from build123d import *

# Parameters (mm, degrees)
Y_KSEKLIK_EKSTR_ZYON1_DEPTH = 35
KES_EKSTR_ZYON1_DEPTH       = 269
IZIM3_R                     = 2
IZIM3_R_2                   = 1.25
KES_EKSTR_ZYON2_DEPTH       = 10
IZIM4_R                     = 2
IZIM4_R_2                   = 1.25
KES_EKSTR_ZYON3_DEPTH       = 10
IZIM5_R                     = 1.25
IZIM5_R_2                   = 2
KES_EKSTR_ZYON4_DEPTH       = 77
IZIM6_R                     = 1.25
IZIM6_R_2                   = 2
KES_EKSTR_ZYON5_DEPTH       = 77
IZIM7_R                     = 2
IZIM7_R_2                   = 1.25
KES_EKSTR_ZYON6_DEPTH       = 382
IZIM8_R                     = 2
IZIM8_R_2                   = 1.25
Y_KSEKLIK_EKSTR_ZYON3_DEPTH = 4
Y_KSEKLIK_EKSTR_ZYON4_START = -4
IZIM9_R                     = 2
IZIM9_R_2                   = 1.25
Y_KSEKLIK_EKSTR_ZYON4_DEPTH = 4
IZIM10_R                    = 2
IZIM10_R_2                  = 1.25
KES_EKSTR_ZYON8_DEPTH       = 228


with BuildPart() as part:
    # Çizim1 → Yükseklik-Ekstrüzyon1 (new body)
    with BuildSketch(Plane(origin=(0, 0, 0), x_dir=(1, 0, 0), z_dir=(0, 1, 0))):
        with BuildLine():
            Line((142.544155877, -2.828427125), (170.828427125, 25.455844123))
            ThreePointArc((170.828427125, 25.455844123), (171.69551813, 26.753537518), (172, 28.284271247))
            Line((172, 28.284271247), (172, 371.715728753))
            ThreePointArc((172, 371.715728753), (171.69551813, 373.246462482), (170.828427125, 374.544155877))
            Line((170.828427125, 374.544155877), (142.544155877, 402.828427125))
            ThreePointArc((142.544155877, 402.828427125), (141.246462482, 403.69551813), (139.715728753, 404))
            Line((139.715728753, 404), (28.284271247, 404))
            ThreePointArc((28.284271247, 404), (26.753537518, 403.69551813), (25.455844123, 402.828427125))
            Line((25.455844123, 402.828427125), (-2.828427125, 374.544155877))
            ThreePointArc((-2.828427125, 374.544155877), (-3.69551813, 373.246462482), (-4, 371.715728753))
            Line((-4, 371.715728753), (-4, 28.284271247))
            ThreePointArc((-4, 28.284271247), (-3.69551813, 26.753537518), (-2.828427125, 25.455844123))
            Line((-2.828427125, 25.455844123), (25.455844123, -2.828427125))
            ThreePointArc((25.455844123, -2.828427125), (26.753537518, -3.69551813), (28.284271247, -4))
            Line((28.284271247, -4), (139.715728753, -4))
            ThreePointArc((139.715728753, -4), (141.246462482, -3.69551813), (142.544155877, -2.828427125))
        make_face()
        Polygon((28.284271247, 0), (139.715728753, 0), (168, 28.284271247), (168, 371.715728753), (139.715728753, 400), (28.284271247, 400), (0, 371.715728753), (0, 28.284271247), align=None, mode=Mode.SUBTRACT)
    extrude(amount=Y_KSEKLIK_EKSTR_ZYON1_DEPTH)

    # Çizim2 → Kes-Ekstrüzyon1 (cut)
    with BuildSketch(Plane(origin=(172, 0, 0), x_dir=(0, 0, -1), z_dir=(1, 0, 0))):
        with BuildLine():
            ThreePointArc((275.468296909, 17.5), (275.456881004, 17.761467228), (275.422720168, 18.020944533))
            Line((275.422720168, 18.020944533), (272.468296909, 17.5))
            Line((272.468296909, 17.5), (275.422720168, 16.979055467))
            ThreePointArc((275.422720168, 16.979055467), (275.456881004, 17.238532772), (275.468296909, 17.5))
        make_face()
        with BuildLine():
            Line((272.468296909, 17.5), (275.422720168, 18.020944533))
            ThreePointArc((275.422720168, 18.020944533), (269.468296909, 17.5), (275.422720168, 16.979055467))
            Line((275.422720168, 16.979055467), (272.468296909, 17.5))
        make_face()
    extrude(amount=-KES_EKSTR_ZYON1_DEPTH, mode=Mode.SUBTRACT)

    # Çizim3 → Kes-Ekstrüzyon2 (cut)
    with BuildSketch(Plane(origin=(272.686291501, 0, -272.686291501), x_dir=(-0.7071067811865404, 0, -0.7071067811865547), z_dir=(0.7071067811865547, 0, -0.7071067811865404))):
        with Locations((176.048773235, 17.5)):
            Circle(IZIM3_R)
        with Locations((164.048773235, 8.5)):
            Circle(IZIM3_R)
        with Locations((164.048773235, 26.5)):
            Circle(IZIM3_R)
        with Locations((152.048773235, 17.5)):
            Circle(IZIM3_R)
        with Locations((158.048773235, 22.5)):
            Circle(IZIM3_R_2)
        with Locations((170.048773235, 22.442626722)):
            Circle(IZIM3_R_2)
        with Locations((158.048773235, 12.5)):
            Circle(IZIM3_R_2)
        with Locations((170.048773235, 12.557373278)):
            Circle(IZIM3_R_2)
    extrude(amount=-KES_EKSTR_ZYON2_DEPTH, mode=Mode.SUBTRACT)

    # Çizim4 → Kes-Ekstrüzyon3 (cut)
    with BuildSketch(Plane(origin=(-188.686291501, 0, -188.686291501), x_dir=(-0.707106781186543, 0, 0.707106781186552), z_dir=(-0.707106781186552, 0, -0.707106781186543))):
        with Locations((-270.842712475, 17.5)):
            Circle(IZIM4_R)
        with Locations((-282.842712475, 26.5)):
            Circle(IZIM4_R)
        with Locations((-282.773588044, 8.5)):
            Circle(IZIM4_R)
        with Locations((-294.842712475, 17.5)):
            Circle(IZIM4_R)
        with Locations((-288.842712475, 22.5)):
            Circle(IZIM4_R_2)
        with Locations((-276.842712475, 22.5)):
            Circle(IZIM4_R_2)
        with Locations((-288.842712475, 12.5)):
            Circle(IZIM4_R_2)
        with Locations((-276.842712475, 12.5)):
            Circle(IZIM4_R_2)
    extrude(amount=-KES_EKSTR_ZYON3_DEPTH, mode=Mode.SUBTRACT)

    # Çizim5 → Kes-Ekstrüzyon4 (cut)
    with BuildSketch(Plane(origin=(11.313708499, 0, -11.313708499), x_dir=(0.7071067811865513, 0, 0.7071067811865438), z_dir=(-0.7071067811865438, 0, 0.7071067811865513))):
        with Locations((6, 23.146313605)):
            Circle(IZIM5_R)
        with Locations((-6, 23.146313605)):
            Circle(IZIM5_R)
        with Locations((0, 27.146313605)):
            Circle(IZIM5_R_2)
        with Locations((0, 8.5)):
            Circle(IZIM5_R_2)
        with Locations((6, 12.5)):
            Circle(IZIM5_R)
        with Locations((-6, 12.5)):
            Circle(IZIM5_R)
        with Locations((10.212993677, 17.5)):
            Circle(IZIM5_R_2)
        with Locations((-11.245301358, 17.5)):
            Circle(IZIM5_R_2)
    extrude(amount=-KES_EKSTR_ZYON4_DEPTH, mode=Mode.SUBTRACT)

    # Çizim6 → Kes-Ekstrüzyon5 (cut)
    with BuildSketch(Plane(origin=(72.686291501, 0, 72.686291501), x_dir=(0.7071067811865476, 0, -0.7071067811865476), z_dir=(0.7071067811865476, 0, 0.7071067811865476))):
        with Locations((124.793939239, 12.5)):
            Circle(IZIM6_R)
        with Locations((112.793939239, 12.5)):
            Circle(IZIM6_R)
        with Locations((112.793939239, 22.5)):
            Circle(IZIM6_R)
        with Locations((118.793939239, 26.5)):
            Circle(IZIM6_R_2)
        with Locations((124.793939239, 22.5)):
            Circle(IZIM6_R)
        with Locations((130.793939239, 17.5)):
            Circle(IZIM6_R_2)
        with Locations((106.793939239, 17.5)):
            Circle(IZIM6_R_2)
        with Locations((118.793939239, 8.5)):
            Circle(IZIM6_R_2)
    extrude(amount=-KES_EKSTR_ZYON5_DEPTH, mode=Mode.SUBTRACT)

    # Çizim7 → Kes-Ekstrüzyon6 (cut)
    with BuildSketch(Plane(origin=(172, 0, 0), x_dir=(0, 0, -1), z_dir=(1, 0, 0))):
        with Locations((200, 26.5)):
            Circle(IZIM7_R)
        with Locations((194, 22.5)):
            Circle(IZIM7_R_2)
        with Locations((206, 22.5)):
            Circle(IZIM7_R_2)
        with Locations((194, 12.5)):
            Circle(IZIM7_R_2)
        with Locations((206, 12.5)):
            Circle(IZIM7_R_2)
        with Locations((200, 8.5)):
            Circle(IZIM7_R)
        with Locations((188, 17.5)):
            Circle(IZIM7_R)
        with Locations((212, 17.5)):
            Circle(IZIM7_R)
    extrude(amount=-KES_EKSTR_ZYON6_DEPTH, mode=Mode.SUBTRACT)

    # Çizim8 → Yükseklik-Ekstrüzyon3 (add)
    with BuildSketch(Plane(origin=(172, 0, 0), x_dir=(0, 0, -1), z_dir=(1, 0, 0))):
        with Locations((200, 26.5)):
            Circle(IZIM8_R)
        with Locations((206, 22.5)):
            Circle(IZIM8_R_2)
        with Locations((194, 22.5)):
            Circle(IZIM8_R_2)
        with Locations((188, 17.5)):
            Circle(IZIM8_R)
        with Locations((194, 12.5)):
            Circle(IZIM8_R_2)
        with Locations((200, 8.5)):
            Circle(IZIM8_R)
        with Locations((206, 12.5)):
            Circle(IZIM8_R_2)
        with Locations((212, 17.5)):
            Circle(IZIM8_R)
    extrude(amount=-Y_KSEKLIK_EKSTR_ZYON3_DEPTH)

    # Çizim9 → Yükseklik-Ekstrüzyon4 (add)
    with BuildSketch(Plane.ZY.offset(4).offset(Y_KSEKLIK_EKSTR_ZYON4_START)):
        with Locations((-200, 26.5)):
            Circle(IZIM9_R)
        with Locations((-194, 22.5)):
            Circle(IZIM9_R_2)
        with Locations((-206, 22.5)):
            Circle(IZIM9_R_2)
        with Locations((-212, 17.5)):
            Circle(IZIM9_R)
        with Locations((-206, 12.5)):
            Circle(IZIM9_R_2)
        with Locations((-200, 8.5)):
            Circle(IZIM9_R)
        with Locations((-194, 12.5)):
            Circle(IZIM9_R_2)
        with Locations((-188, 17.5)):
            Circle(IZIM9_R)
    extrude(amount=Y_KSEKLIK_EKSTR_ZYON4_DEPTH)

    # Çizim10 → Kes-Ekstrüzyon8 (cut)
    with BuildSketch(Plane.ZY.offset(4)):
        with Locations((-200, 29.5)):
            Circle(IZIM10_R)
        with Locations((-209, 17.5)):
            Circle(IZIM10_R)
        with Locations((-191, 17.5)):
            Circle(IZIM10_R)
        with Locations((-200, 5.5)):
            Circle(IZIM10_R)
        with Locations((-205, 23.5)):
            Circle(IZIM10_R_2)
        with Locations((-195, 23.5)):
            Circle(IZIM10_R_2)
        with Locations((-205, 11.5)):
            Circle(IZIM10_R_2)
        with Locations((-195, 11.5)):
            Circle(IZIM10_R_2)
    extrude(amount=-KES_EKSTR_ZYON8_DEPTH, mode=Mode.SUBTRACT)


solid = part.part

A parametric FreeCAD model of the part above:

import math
import FreeCAD as App
import Part
import Sketcher
from FreeCAD import Vector
Q = App.Units.Quantity


def add_polygon(sketch, points):
    """Adds a closed chain of lines whose ends are joined by coincident constraints."""
    first, n = sketch.GeometryCount, len(points)
    for a, b in zip(points, points[1:] + points[:1]):
        sketch.addGeometry(Part.LineSegment(App.Vector(*a, 0), App.Vector(*b, 0)), False)
    for i in range(n):
        sketch.addConstraint(Sketcher.Constraint("Coincident", first + i, 2, first + (i + 1) % n, 1))

doc = App.newDocument("Part")
params = doc.addObject("Spreadsheet::Sheet", "Params")
for row, (alias, value) in enumerate([
    ("sketch1_radius", "4 mm"),
    ("sketch1_length", "40 mm"),
    ("pad1_length", "35 mm"),
    ("sketch2_radius", "3 mm"),
    ("pocket1_length", "269 mm"),
    ("sketch3_diameter", "4 mm"),
    ("sketch3_diameter2", "2.5 mm"),
    ("pocket2_length", "10 mm"),
    ("sketch4_diameter", "4 mm"),
    ("sketch4_diameter2", "2.5 mm"),
    ("pocket3_length", "10 mm"),
    ("sketch5_diameter", "4 mm"),
    ("sketch5_diameter2", "2.5 mm"),
    ("pocket4_length", "77 mm"),
    ("sketch6_diameter", "4 mm"),
    ("sketch6_diameter2", "2.5 mm"),
    ("pocket5_length", "77 mm"),
    ("sketch7_diameter", "4 mm"),
    ("sketch7_diameter2", "2.5 mm"),
    ("pocket6_length", "382 mm"),
    ("sketch8_diameter", "4 mm"),
    ("sketch8_diameter2", "2.5 mm"),
    ("pad2_length", "4 mm"),
    ("sketch9_diameter", "4 mm"),
    ("sketch9_diameter2", "2.5 mm"),
    ("pad3_length", "4 mm"),
    ("sketch10_diameter", "4 mm"),
    ("sketch10_diameter2", "2.5 mm"),
    ("pocket7_length", "228 mm"),
], start=1):
    params.set(f"A{row}", alias)
    params.set(f"B{row}", "=" + value)
    params.setAlias(f"B{row}", alias)

body = doc.addObject("PartDesign::Body", "Body")

sketch1 = body.newObject("Sketcher::SketchObject", "Sketch")
sketch1.AttachmentSupport = (doc.getObject("XZ_Plane"), [""])
sketch1.MapMode = "FlatFace"
sketch1.addGeometry(Part.LineSegment(Vector(142.5, 2.8, 0), Vector(170.8, -25.5, 0)), False)
sketch1.addGeometry(Part.ArcOfCircle(Part.Circle(Vector(168, -28.3, 0), Vector(0, 0, 1), 4), math.radians(0), math.radians(45)), False)
sketch1.addGeometry(Part.LineSegment(Vector(172, -28.3, 0), Vector(172, -371.7, 0)), False)
sketch1.addGeometry(Part.ArcOfCircle(Part.Circle(Vector(168, -371.7, 0), Vector(0, 0, 1), 4), math.radians(-45), math.radians(0)), False)
sketch1.addGeometry(Part.LineSegment(Vector(170.8, -374.5, 0), Vector(142.5, -402.8, 0)), False)
sketch1.addGeometry(Part.ArcOfCircle(Part.Circle(Vector(139.7, -400, 0), Vector(0, 0, 1), 4), math.radians(-90), math.radians(-45)), False)
sketch1.addGeometry(Part.LineSegment(Vector(139.7, -404, 0), Vector(28.3, -404, 0)), False)
sketch1.addGeometry(Part.ArcOfCircle(Part.Circle(Vector(28.3, -400, 0), Vector(0, 0, 1), 4), math.radians(-135), math.radians(-90)), False)
sketch1.addGeometry(Part.LineSegment(Vector(25.5, -402.8, 0), Vector(-2.8, -374.5, 0)), False)
sketch1.addGeometry(Part.ArcOfCircle(Part.Circle(Vector(0, -371.7, 0), Vector(0, 0, 1), 4), math.radians(-180), math.radians(-135)), False)
sketch1.addGeometry(Part.LineSegment(Vector(-4, -371.7, 0), Vector(-4, -28.3, 0)), False)
sketch1.addGeometry(Part.ArcOfCircle(Part.Circle(Vector(0, -28.3, 0), Vector(0, 0, 1), 4), math.radians(135), math.radians(180)), False)
sketch1.addGeometry(Part.LineSegment(Vector(-2.8, -25.5, 0), Vector(25.5, 2.8, 0)), False)
sketch1.addGeometry(Part.ArcOfCircle(Part.Circle(Vector(28.3, 0, 0), Vector(0, 0, 1), 4), math.radians(90), math.radians(135)), False)
sketch1.addGeometry(Part.LineSegment(Vector(28.3, 4, 0), Vector(139.7, 4, 0)), False)
sketch1.addGeometry(Part.ArcOfCircle(Part.Circle(Vector(139.7, 0, 0), Vector(0, 0, 1), 4), math.radians(45), math.radians(90)), False)
add_polygon(sketch1, [(139.7, 0), (28.3, 0), (0, -28.3), (0, -371.7), (28.3, -400), (139.7, -400), (168, -371.7), (168, -28.3)])
sketch1.addConstraint(Sketcher.Constraint("Tangent", 0, 2, 1, 2))
sketch1.addConstraint(Sketcher.Constraint("Tangent", 1, 1, 2, 1))
sketch1.addConstraint(Sketcher.Constraint("Tangent", 2, 2, 3, 2))
sketch1.addConstraint(Sketcher.Constraint("Tangent", 3, 1, 4, 1))
sketch1.addConstraint(Sketcher.Constraint("Tangent", 4, 2, 5, 2))
sketch1.addConstraint(Sketcher.Constraint("Tangent", 5, 1, 6, 1))
sketch1.addConstraint(Sketcher.Constraint("Tangent", 6, 2, 7, 2))
sketch1.addConstraint(Sketcher.Constraint("Tangent", 7, 1, 8, 1))
sketch1.addConstraint(Sketcher.Constraint("Tangent", 8, 2, 9, 2))
sketch1.addConstraint(Sketcher.Constraint("Tangent", 9, 1, 10, 1))
sketch1.addConstraint(Sketcher.Constraint("Tangent", 10, 2, 11, 2))
sketch1.addConstraint(Sketcher.Constraint("Tangent", 11, 1, 12, 1))
sketch1.addConstraint(Sketcher.Constraint("Tangent", 12, 2, 13, 2))
sketch1.addConstraint(Sketcher.Constraint("Tangent", 13, 1, 14, 1))
sketch1.addConstraint(Sketcher.Constraint("Tangent", 14, 2, 15, 2))
sketch1.addConstraint(Sketcher.Constraint("Tangent", 15, 1, 0, 1))
sketch1.addConstraint(Sketcher.Constraint("Vertical", 2))
sketch1.addConstraint(Sketcher.Constraint("Horizontal", 6))
sketch1.addConstraint(Sketcher.Constraint("Vertical", 10))
sketch1.addConstraint(Sketcher.Constraint("Horizontal", 14))
sketch1.addConstraint(Sketcher.Constraint("Horizontal", 16))
sketch1.addConstraint(Sketcher.Constraint("Vertical", 18))
sketch1.addConstraint(Sketcher.Constraint("Horizontal", 20))
sketch1.addConstraint(Sketcher.Constraint("Vertical", 22))
sketch1.addConstraint(Sketcher.Constraint("Coincident", 16, 2, 13, 3))
sketch1.addConstraint(Sketcher.Constraint("Coincident", 17, 2, 11, 3))
sketch1.addConstraint(Sketcher.Constraint("Coincident", 18, 2, 9, 3))
sketch1.addConstraint(Sketcher.Constraint("Coincident", 19, 2, 7, 3))
sketch1.addConstraint(Sketcher.Constraint("Coincident", 20, 2, 5, 3))
sketch1.addConstraint(Sketcher.Constraint("Coincident", 21, 2, 3, 3))
sketch1.addConstraint(Sketcher.Constraint("Coincident", 22, 2, 1, 3))
sketch1.addConstraint(Sketcher.Constraint("Coincident", 23, 2, 15, 3))
sketch1.addConstraint(Sketcher.Constraint("Equal", 3, 5))
sketch1.addConstraint(Sketcher.Constraint("Equal", 7, 9))
sketch1.addConstraint(Sketcher.Constraint("Equal", 11, 13))
sketch1.addConstraint(Sketcher.Constraint("PointOnObject", 9, 3, -2))
sketch1.addConstraint(Sketcher.Constraint("PointOnObject", 13, 3, -1))
sketch1.addConstraint(Sketcher.Constraint("Perpendicular", 0, 4))
sketch1.addConstraint(Sketcher.Constraint("Perpendicular", 4, 8))
sketch1.addConstraint(Sketcher.Constraint("Perpendicular", 8, 12))
sketch1.addConstraint(Sketcher.Constraint("Horizontal", 3, 3, 9, 3))
sketch1.addConstraint(Sketcher.Constraint("Horizontal", 1, 3, 11, 3))
sketch1.addConstraint(Sketcher.Constraint("Horizontal", 4, 2, 7, 1))
sketch1.addConstraint(Sketcher.Constraint("Vertical", 7, 3, 13, 3))
sketch1.addConstraint(Sketcher.Constraint("Radius", 1, Q("4 mm")))
sketch1.addConstraint(Sketcher.Constraint("Distance", 0, Q("40 mm")))
sketch1.addConstraint(Sketcher.Constraint("DistanceX", -1, 1, 1, 3, Q("168 mm")))
sketch1.addConstraint(Sketcher.Constraint("DistanceY", 5, 3, -1, 1, Q("400 mm")))
sketch1.setExpression("Constraints[52]", "Params.sketch1_radius")
sketch1.setExpression("Constraints[53]", "Params.sketch1_length")
pad1 = body.newObject("PartDesign::Pad", "Pad")
pad1.Profile = sketch1
pad1.setExpression("Length", "Params.pad1_length")
pad1.Reversed = True

sketch2 = body.newObject("Sketcher::SketchObject", "Sketch001")
sketch2.AttachmentSupport = (doc.getObject("YZ_Plane"), [""])
sketch2.MapMode = "FlatFace"
sketch2.AttachmentOffset = App.Placement(Vector(0, 0, 172), App.Rotation())
sketch2.addGeometry(Part.ArcOfCircle(Part.Circle(Vector(17.5, -272.5, 0), Vector(0, 0, 1), 3), math.radians(-90), math.radians(-80)), False)
sketch2.addGeometry(Part.ArcOfCircle(Part.Circle(Vector(17.5, -272.5, 0), Vector(0, 0, 1), 3), math.radians(-80), math.radians(260)), False)
sketch2.addGeometry(Part.ArcOfCircle(Part.Circle(Vector(17.5, -272.5, 0), Vector(0, 0, 1), 3), math.radians(-100), math.radians(-90)), False)
sketch2.addConstraint(Sketcher.Constraint("Tangent", 0, 2, 1, 1))
sketch2.addConstraint(Sketcher.Constraint("Tangent", 1, 2, 2, 1))
sketch2.addConstraint(Sketcher.Constraint("Tangent", 2, 2, 0, 1))
sketch2.addConstraint(Sketcher.Constraint("Horizontal", 0, 2, 1, 2))
sketch2.addConstraint(Sketcher.Constraint("Vertical", 1, 3, 2, 2))
sketch2.addConstraint(Sketcher.Constraint("Radius", 0, Q("3 mm")))
sketch2.addConstraint(Sketcher.Constraint("DistanceX", -1, 1, 0, 3, Q("17.5 mm")))
sketch2.addConstraint(Sketcher.Constraint("DistanceY", 0, 2, -1, 1, Q("275.42272 mm")))
sketch2.addConstraint(Sketcher.Constraint("DistanceX", 1, 2, 0, 2, Q("1.041889 mm")))
sketch2.setExpression("Constraints[5]", "Params.sketch2_radius")
pocket1 = body.newObject("PartDesign::Pocket", "Pocket")
pocket1.Profile = sketch2
pocket1.setExpression("Length", "Params.pocket1_length")

sketch3 = body.newObject("Sketcher::SketchObject", "Sketch002")
sketch3.Placement = App.Placement(Vector(272.686292, 0, -272.686292), App.Rotation(Vector(-0.707106781, 0, -0.707106781), Vector(0, 0.999999999, 0), Vector(0.707106781, 0, -0.707106781), "ZXY"))
sketch3.addGeometry(Part.Circle(Vector(176, 17.5, 0), Vector(0, 0, 1), 2), False)
sketch3.addGeometry(Part.Circle(Vector(164, 8.5, 0), Vector(0, 0, 1), 2), False)
sketch3.addGeometry(Part.Circle(Vector(164, 26.5, 0), Vector(0, 0, 1), 2), False)
sketch3.addGeometry(Part.Circle(Vector(152, 17.5, 0), Vector(0, 0, 1), 2), False)
sketch3.addGeometry(Part.Circle(Vector(158, 22.5, 0), Vector(0, 0, 1), 1.2), False)
sketch3.addGeometry(Part.Circle(Vector(170, 22.4, 0), Vector(0, 0, 1), 1.2), False)
sketch3.addGeometry(Part.Circle(Vector(158, 12.5, 0), Vector(0, 0, 1), 1.2), False)
sketch3.addGeometry(Part.Circle(Vector(170, 12.6, 0), Vector(0, 0, 1), 1.2), False)
sketch3.addConstraint(Sketcher.Constraint("Equal", 0, 1))
sketch3.addConstraint(Sketcher.Constraint("Equal", 1, 2))
sketch3.addConstraint(Sketcher.Constraint("Equal", 2, 3))
sketch3.addConstraint(Sketcher.Constraint("Equal", 4, 5))
sketch3.addConstraint(Sketcher.Constraint("Equal", 5, 6))
sketch3.addConstraint(Sketcher.Constraint("Equal", 6, 7))
sketch3.addConstraint(Sketcher.Constraint("Horizontal", 0, 3, 3, 3))
sketch3.addConstraint(Sketcher.Constraint("Vertical", 1, 3, 2, 3))
sketch3.addConstraint(Sketcher.Constraint("Vertical", 4, 3, 6, 3))
sketch3.addConstraint(Sketcher.Constraint("Vertical", 5, 3, 7, 3))
sketch3.addConstraint(Sketcher.Constraint("Diameter", 0, Q("4 mm")))
sketch3.addConstraint(Sketcher.Constraint("Diameter", 4, Q("2.5 mm")))
sketch3.addConstraint(Sketcher.Constraint("DistanceX", 1, 3, 0, 3, Q("12 mm")))
sketch3.addConstraint(Sketcher.Constraint("DistanceY", 1, 3, 0, 3, Q("9 mm")))
sketch3.addConstraint(Sketcher.Constraint("DistanceY", 0, 3, 2, 3, Q("9 mm")))
sketch3.addConstraint(Sketcher.Constraint("DistanceX", 3, 3, 2, 3, Q("12 mm")))
sketch3.addConstraint(Sketcher.Constraint("DistanceX", 4, 3, 2, 3, Q("6 mm")))
sketch3.addConstraint(Sketcher.Constraint("DistanceY", 4, 3, 2, 3, Q("4 mm")))
sketch3.addConstraint(Sketcher.Constraint("DistanceX", 2, 3, 5, 3, Q("6 mm")))
sketch3.addConstraint(Sketcher.Constraint("DistanceY", 1, 3, 6, 3, Q("4 mm")))
sketch3.addConstraint(Sketcher.Constraint("DistanceY", -1, 1, 0, 3, Q("17.5 mm")))
sketch3.addConstraint(Sketcher.Constraint("DistanceX", -1, 1, 0, 3, Q("176.048773 mm")))
sketch3.addConstraint(Sketcher.Constraint("DistanceY", -1, 1, 5, 3, Q("22.442627 mm")))
sketch3.addConstraint(Sketcher.Constraint("DistanceY", -1, 1, 7, 3, Q("12.557373 mm")))
sketch3.setExpression("Constraints[10]", "Params.sketch3_diameter")
sketch3.setExpression("Constraints[11]", "Params.sketch3_diameter2")
pocket2 = body.newObject("PartDesign::Pocket", "Pocket001")
pocket2.Profile = sketch3
pocket2.setExpression("Length", "Params.pocket2_length")

sketch4 = body.newObject("Sketcher::SketchObject", "Sketch003")
sketch4.Placement = App.Placement(Vector(-188.686292, 0, -188.686292), App.Rotation(Vector(-0.707106781, 0, 0.707106781), Vector(0, 0.999999999, 0), Vector(-0.707106781, 0, -0.707106781), "ZXY"))
sketch4.addGeometry(Part.Circle(Vector(-270.8, 17.5, 0), Vector(0, 0, 1), 2), False)
sketch4.addGeometry(Part.Circle(Vector(-282.8, 26.5, 0), Vector(0, 0, 1), 2), False)
sketch4.addGeometry(Part.Circle(Vector(-282.8, 8.5, 0), Vector(0, 0, 1), 2), False)
sketch4.addGeometry(Part.Circle(Vector(-294.8, 17.5, 0), Vector(0, 0, 1), 2), False)
sketch4.addGeometry(Part.Circle(Vector(-288.8, 22.5, 0), Vector(0, 0, 1), 1.2), False)
sketch4.addGeometry(Part.Circle(Vector(-276.8, 22.5, 0), Vector(0, 0, 1), 1.2), False)
sketch4.addGeometry(Part.Circle(Vector(-288.8, 12.5, 0), Vector(0, 0, 1), 1.2), False)
sketch4.addGeometry(Part.Circle(Vector(-276.8, 12.5, 0), Vector(0, 0, 1), 1.2), False)
sketch4.addConstraint(Sketcher.Constraint("Equal", 0, 1))
sketch4.addConstraint(Sketcher.Constraint("Equal", 1, 2))
sketch4.addConstraint(Sketcher.Constraint("Equal", 2, 3))
sketch4.addConstraint(Sketcher.Constraint("Equal", 4, 5))
sketch4.addConstraint(Sketcher.Constraint("Equal", 5, 6))
sketch4.addConstraint(Sketcher.Constraint("Equal", 6, 7))
sketch4.addConstraint(Sketcher.Constraint("Horizontal", 0, 3, 3, 3))
sketch4.addConstraint(Sketcher.Constraint("Horizontal", 4, 3, 5, 3))
sketch4.addConstraint(Sketcher.Constraint("Horizontal", 6, 3, 7, 3))
sketch4.addConstraint(Sketcher.Constraint("Vertical", 4, 3, 6, 3))
sketch4.addConstraint(Sketcher.Constraint("Vertical", 5, 3, 7, 3))
sketch4.addConstraint(Sketcher.Constraint("Diameter", 0, Q("4 mm")))
sketch4.addConstraint(Sketcher.Constraint("Diameter", 4, Q("2.5 mm")))
sketch4.addConstraint(Sketcher.Constraint("DistanceX", 1, 3, 0, 3, Q("12 mm")))
sketch4.addConstraint(Sketcher.Constraint("DistanceY", 0, 3, 1, 3, Q("9 mm")))
sketch4.addConstraint(Sketcher.Constraint("DistanceY", 2, 3, 0, 3, Q("9 mm")))
sketch4.addConstraint(Sketcher.Constraint("DistanceX", 3, 3, 1, 3, Q("12 mm")))
sketch4.addConstraint(Sketcher.Constraint("DistanceX", 4, 3, 1, 3, Q("6 mm")))
sketch4.addConstraint(Sketcher.Constraint("DistanceY", 4, 3, 1, 3, Q("4 mm")))
sketch4.addConstraint(Sketcher.Constraint("DistanceX", 1, 3, 5, 3, Q("6 mm")))
sketch4.addConstraint(Sketcher.Constraint("DistanceY", 2, 3, 6, 3, Q("4 mm")))
sketch4.addConstraint(Sketcher.Constraint("DistanceY", -1, 1, 0, 3, Q("17.5 mm")))
sketch4.addConstraint(Sketcher.Constraint("DistanceX", 0, 3, -1, 1, Q("270.842712 mm")))
sketch4.addConstraint(Sketcher.Constraint("DistanceX", 2, 3, -1, 1, Q("282.773588 mm")))
sketch4.setExpression("Constraints[11]", "Params.sketch4_diameter")
sketch4.setExpression("Constraints[12]", "Params.sketch4_diameter2")
pocket3 = body.newObject("PartDesign::Pocket", "Pocket002")
pocket3.Profile = sketch4
pocket3.setExpression("Length", "Params.pocket3_length")

sketch5 = body.newObject("Sketcher::SketchObject", "Sketch004")
sketch5.Placement = App.Placement(Vector(11.313708, 0, -11.313708), App.Rotation(Vector(0.707106781, 0, 0.707106781), Vector(0, 0.999999999, 0), Vector(-0.707106781, 0, 0.707106781), "ZXY"))
sketch5.addGeometry(Part.Circle(Vector(6, 23.1, 0), Vector(0, 0, 1), 1.2), False)
sketch5.addGeometry(Part.Circle(Vector(-6, 23.1, 0), Vector(0, 0, 1), 1.2), False)
sketch5.addGeometry(Part.Circle(Vector(0, 27.1, 0), Vector(0, 0, 1), 2), False)
sketch5.addGeometry(Part.Circle(Vector(0, 8.5, 0), Vector(0, 0, 1), 2), False)
sketch5.addGeometry(Part.Circle(Vector(6, 12.5, 0), Vector(0, 0, 1), 1.2), False)
sketch5.addGeometry(Part.Circle(Vector(-6, 12.5, 0), Vector(0, 0, 1), 1.2), False)
sketch5.addGeometry(Part.Circle(Vector(10.2, 17.5, 0), Vector(0, 0, 1), 2), False)
sketch5.addGeometry(Part.Circle(Vector(-11.2, 17.5, 0), Vector(0, 0, 1), 2), False)
sketch5.addConstraint(Sketcher.Constraint("Equal", 0, 1))
sketch5.addConstraint(Sketcher.Constraint("Equal", 2, 3))
sketch5.addConstraint(Sketcher.Constraint("Equal", 1, 4))
sketch5.addConstraint(Sketcher.Constraint("Equal", 4, 5))
sketch5.addConstraint(Sketcher.Constraint("Equal", 3, 6))
sketch5.addConstraint(Sketcher.Constraint("Equal", 6, 7))
sketch5.addConstraint(Sketcher.Constraint("Symmetric", 0, 3, 1, 3, -2))
sketch5.addConstraint(Sketcher.Constraint("Symmetric", 4, 3, 5, 3, -2))
sketch5.addConstraint(Sketcher.Constraint("PointOnObject", 2, 3, -2))
sketch5.addConstraint(Sketcher.Constraint("PointOnObject", 3, 3, -2))
sketch5.addConstraint(Sketcher.Constraint("Horizontal", 6, 3, 7, 3))
sketch5.addConstraint(Sketcher.Constraint("Vertical", 0, 3, 4, 3))
sketch5.addConstraint(Sketcher.Constraint("Diameter", 2, Q("4 mm")))
sketch5.addConstraint(Sketcher.Constraint("Diameter", 0, Q("2.5 mm")))
sketch5.addConstraint(Sketcher.Constraint("DistanceX", -1, 1, 0, 3, Q("6 mm")))
sketch5.addConstraint(Sketcher.Constraint("DistanceY", 0, 3, 2, 3, Q("4 mm")))
sketch5.addConstraint(Sketcher.Constraint("DistanceY", 3, 3, 4, 3, Q("4 mm")))
sketch5.addConstraint(Sketcher.Constraint("DistanceY", 4, 3, 6, 3, Q("5 mm")))
sketch5.addConstraint(Sketcher.Constraint("DistanceY", -1, 1, 3, 3, Q("8.5 mm")))
sketch5.addConstraint(Sketcher.Constraint("DistanceX", 7, 3, -1, 1, Q("11.245301 mm")))
sketch5.addConstraint(Sketcher.Constraint("DistanceY", -1, 1, 0, 3, Q("23.146314 mm")))
sketch5.addConstraint(Sketcher.Constraint("DistanceX", -1, 1, 6, 3, Q("10.212994 mm")))
sketch5.setExpression("Constraints[12]", "Params.sketch5_diameter")
sketch5.setExpression("Constraints[13]", "Params.sketch5_diameter2")
pocket4 = body.newObject("PartDesign::Pocket", "Pocket003")
pocket4.Profile = sketch5
pocket4.setExpression("Length", "Params.pocket4_length")

sketch6 = body.newObject("Sketcher::SketchObject", "Sketch005")
sketch6.Placement = App.Placement(Vector(72.686292, 0, 72.686292), App.Rotation(Vector(0.707106781, 0, -0.707106781), Vector(0, 0.999999999, 0), Vector(0.707106781, 0, 0.707106781), "ZXY"))
sketch6.addGeometry(Part.Circle(Vector(124.8, 12.5, 0), Vector(0, 0, 1), 1.2), False)
sketch6.addGeometry(Part.Circle(Vector(112.8, 12.5, 0), Vector(0, 0, 1), 1.2), False)
sketch6.addGeometry(Part.Circle(Vector(112.8, 22.5, 0), Vector(0, 0, 1), 1.2), False)
sketch6.addGeometry(Part.Circle(Vector(118.8, 26.5, 0), Vector(0, 0, 1), 2), False)
sketch6.addGeometry(Part.Circle(Vector(124.8, 22.5, 0), Vector(0, 0, 1), 1.2), False)
sketch6.addGeometry(Part.Circle(Vector(130.8, 17.5, 0), Vector(0, 0, 1), 2), False)
sketch6.addGeometry(Part.Circle(Vector(106.8, 17.5, 0), Vector(0, 0, 1), 2), False)
sketch6.addGeometry(Part.Circle(Vector(118.8, 8.5, 0), Vector(0, 0, 1), 2), False)
sketch6.addConstraint(Sketcher.Constraint("Equal", 0, 1))
sketch6.addConstraint(Sketcher.Constraint("Equal", 1, 2))
sketch6.addConstraint(Sketcher.Constraint("Equal", 2, 4))
sketch6.addConstraint(Sketcher.Constraint("Equal", 3, 5))
sketch6.addConstraint(Sketcher.Constraint("Equal", 5, 6))
sketch6.addConstraint(Sketcher.Constraint("Equal", 6, 7))
sketch6.addConstraint(Sketcher.Constraint("Horizontal", 0, 3, 1, 3))
sketch6.addConstraint(Sketcher.Constraint("Horizontal", 2, 3, 4, 3))
sketch6.addConstraint(Sketcher.Constraint("Horizontal", 5, 3, 6, 3))
sketch6.addConstraint(Sketcher.Constraint("Vertical", 1, 3, 2, 3))
sketch6.addConstraint(Sketcher.Constraint("Vertical", 0, 3, 4, 3))
sketch6.addConstraint(Sketcher.Constraint("Vertical", 3, 3, 7, 3))
sketch6.addConstraint(Sketcher.Constraint("Diameter", 3, Q("4 mm")))
sketch6.addConstraint(Sketcher.Constraint("Diameter", 0, Q("2.5 mm")))
sketch6.addConstraint(Sketcher.Constraint("DistanceX", 1, 3, 0, 3, Q("12 mm")))
sketch6.addConstraint(Sketcher.Constraint("DistanceY", 1, 3, 2, 3, Q("10 mm")))
sketch6.addConstraint(Sketcher.Constraint("DistanceX", 2, 3, 3, 3, Q("6 mm")))
sketch6.addConstraint(Sketcher.Constraint("DistanceY", 2, 3, 3, 3, Q("4 mm")))
sketch6.addConstraint(Sketcher.Constraint("DistanceX", 4, 3, 5, 3, Q("6 mm")))
sketch6.addConstraint(Sketcher.Constraint("DistanceY", 5, 3, 4, 3, Q("5 mm")))
sketch6.addConstraint(Sketcher.Constraint("DistanceX", 6, 3, 2, 3, Q("6 mm")))
sketch6.addConstraint(Sketcher.Constraint("DistanceY", 7, 3, 1, 3, Q("4 mm")))
sketch6.addConstraint(Sketcher.Constraint("DistanceY", -1, 1, 0, 3, Q("12.5 mm")))
sketch6.addConstraint(Sketcher.Constraint("DistanceX", -1, 1, 0, 3, Q("124.793939 mm")))
sketch6.setExpression("Constraints[12]", "Params.sketch6_diameter")
sketch6.setExpression("Constraints[13]", "Params.sketch6_diameter2")
pocket5 = body.newObject("PartDesign::Pocket", "Pocket004")
pocket5.Profile = sketch6
pocket5.setExpression("Length", "Params.pocket5_length")

sketch7 = body.newObject("Sketcher::SketchObject", "Sketch006")
sketch7.AttachmentSupport = (doc.getObject("YZ_Plane"), [""])
sketch7.MapMode = "FlatFace"
sketch7.AttachmentOffset = App.Placement(Vector(0, 0, 172), App.Rotation())
sketch7.addGeometry(Part.Circle(Vector(26.5, -200, 0), Vector(0, 0, 1), 2), False)
sketch7.addGeometry(Part.Circle(Vector(22.5, -194, 0), Vector(0, 0, 1), 1.2), False)
sketch7.addGeometry(Part.Circle(Vector(22.5, -206, 0), Vector(0, 0, 1), 1.2), False)
sketch7.addGeometry(Part.Circle(Vector(12.5, -194, 0), Vector(0, 0, 1), 1.2), False)
sketch7.addGeometry(Part.Circle(Vector(12.5, -206, 0), Vector(0, 0, 1), 1.2), False)
sketch7.addGeometry(Part.Circle(Vector(8.5, -200, 0), Vector(0, 0, 1), 2), False)
sketch7.addGeometry(Part.Circle(Vector(17.5, -188, 0), Vector(0, 0, 1), 2), False)
sketch7.addGeometry(Part.Circle(Vector(17.5, -212, 0), Vector(0, 0, 1), 2), False)
sketch7.addConstraint(Sketcher.Constraint("Equal", 1, 2))
sketch7.addConstraint(Sketcher.Constraint("Equal", 2, 3))
sketch7.addConstraint(Sketcher.Constraint("Equal", 3, 4))
sketch7.addConstraint(Sketcher.Constraint("Equal", 0, 5))
sketch7.addConstraint(Sketcher.Constraint("Equal", 5, 6))
sketch7.addConstraint(Sketcher.Constraint("Equal", 6, 7))
sketch7.addConstraint(Sketcher.Constraint("Horizontal", 1, 3, 3, 3))
sketch7.addConstraint(Sketcher.Constraint("Horizontal", 2, 3, 4, 3))
sketch7.addConstraint(Sketcher.Constraint("Horizontal", 0, 3, 5, 3))
sketch7.addConstraint(Sketcher.Constraint("Vertical", 1, 3, 2, 3))
sketch7.addConstraint(Sketcher.Constraint("Vertical", 3, 3, 4, 3))
sketch7.addConstraint(Sketcher.Constraint("Vertical", 6, 3, 7, 3))
sketch7.addConstraint(Sketcher.Constraint("Diameter", 0, Q("4 mm")))
sketch7.addConstraint(Sketcher.Constraint("Diameter", 1, Q("2.5 mm")))
sketch7.addConstraint(Sketcher.Constraint("DistanceY", 0, 3, -1, 1, Q("200 mm")))
sketch7.addConstraint(Sketcher.Constraint("DistanceY", 1, 3, -1, 1, Q("194 mm")))
sketch7.addConstraint(Sketcher.Constraint("DistanceY", 2, 3, -1, 1, Q("206 mm")))
sketch7.addConstraint(Sketcher.Constraint("DistanceY", 6, 3, -1, 1, Q("188 mm")))
sketch7.addConstraint(Sketcher.Constraint("DistanceY", 7, 3, -1, 1, Q("212 mm")))
sketch7.addConstraint(Sketcher.Constraint("DistanceX", 1, 3, 0, 3, Q("4 mm")))
sketch7.addConstraint(Sketcher.Constraint("DistanceX", 3, 3, 1, 3, Q("10 mm")))
sketch7.addConstraint(Sketcher.Constraint("DistanceX", 5, 3, 3, 3, Q("4 mm")))
sketch7.addConstraint(Sketcher.Constraint("DistanceX", 6, 3, 1, 3, Q("5 mm")))
sketch7.addConstraint(Sketcher.Constraint("DistanceX", -1, 1, 0, 3, Q("26.5 mm")))
sketch7.setExpression("Constraints[12]", "Params.sketch7_diameter")
sketch7.setExpression("Constraints[13]", "Params.sketch7_diameter2")
pocket6 = body.newObject("PartDesign::Pocket", "Pocket005")
pocket6.Profile = sketch7
pocket6.setExpression("Length", "Params.pocket6_length")

sketch8 = body.newObject("Sketcher::SketchObject", "Sketch007")
sketch8.AttachmentSupport = (doc.getObject("YZ_Plane"), [""])
sketch8.MapMode = "FlatFace"
sketch8.AttachmentOffset = App.Placement(Vector(0, 0, 172), App.Rotation())
sketch8.addGeometry(Part.Circle(Vector(26.5, -200, 0), Vector(0, 0, 1), 2), False)
sketch8.addGeometry(Part.Circle(Vector(22.5, -206, 0), Vector(0, 0, 1), 1.2), False)
sketch8.addGeometry(Part.Circle(Vector(22.5, -194, 0), Vector(0, 0, 1), 1.2), False)
sketch8.addGeometry(Part.Circle(Vector(17.5, -188, 0), Vector(0, 0, 1), 2), False)
sketch8.addGeometry(Part.Circle(Vector(12.5, -194, 0), Vector(0, 0, 1), 1.2), False)
sketch8.addGeometry(Part.Circle(Vector(8.5, -200, 0), Vector(0, 0, 1), 2), False)
sketch8.addGeometry(Part.Circle(Vector(12.5, -206, 0), Vector(0, 0, 1), 1.2), False)
sketch8.addGeometry(Part.Circle(Vector(17.5, -212, 0), Vector(0, 0, 1), 2), False)
sketch8.addConstraint(Sketcher.Constraint("Equal", 1, 2))
sketch8.addConstraint(Sketcher.Constraint("Equal", 0, 3))
sketch8.addConstraint(Sketcher.Constraint("Equal", 2, 4))
sketch8.addConstraint(Sketcher.Constraint("Equal", 3, 5))
sketch8.addConstraint(Sketcher.Constraint("Equal", 4, 6))
sketch8.addConstraint(Sketcher.Constraint("Equal", 5, 7))
sketch8.addConstraint(Sketcher.Constraint("Horizontal", 2, 3, 4, 3))
sketch8.addConstraint(Sketcher.Constraint("Horizontal", 0, 3, 5, 3))
sketch8.addConstraint(Sketcher.Constraint("Horizontal", 1, 3, 6, 3))
sketch8.addConstraint(Sketcher.Constraint("Vertical", 1, 3, 2, 3))
sketch8.addConstraint(Sketcher.Constraint("Vertical", 4, 3, 6, 3))
sketch8.addConstraint(Sketcher.Constraint("Vertical", 3, 3, 7, 3))
sketch8.addConstraint(Sketcher.Constraint("Diameter", 0, Q("4 mm")))
sketch8.addConstraint(Sketcher.Constraint("Diameter", 1, Q("2.5 mm")))
sketch8.addConstraint(Sketcher.Constraint("DistanceY", 0, 3, -1, 1, Q("200 mm")))
sketch8.addConstraint(Sketcher.Constraint("DistanceY", 1, 3, -1, 1, Q("206 mm")))
sketch8.addConstraint(Sketcher.Constraint("DistanceY", 2, 3, -1, 1, Q("194 mm")))
sketch8.addConstraint(Sketcher.Constraint("DistanceY", 3, 3, -1, 1, Q("188 mm")))
sketch8.addConstraint(Sketcher.Constraint("DistanceY", 7, 3, -1, 1, Q("212 mm")))
sketch8.addConstraint(Sketcher.Constraint("DistanceX", 1, 3, 0, 3, Q("4 mm")))
sketch8.addConstraint(Sketcher.Constraint("DistanceX", 3, 3, 2, 3, Q("5 mm")))
sketch8.addConstraint(Sketcher.Constraint("DistanceX", 4, 3, 3, 3, Q("5 mm")))
sketch8.addConstraint(Sketcher.Constraint("DistanceX", 5, 3, 4, 3, Q("4 mm")))
sketch8.addConstraint(Sketcher.Constraint("DistanceX", -1, 1, 0, 3, Q("26.5 mm")))
sketch8.setExpression("Constraints[12]", "Params.sketch8_diameter")
sketch8.setExpression("Constraints[13]", "Params.sketch8_diameter2")
pad2 = body.newObject("PartDesign::Pad", "Pad001")
pad2.Profile = sketch8
pad2.setExpression("Length", "Params.pad2_length")
pad2.Reversed = True

sketch9 = body.newObject("Sketcher::SketchObject", "Sketch008")
sketch9.AttachmentSupport = (doc.getObject("YZ_Plane"), [""])
sketch9.MapMode = "FlatFace"
sketch9.addGeometry(Part.Circle(Vector(26.5, -200, 0), Vector(0, 0, 1), 2), False)
sketch9.addGeometry(Part.Circle(Vector(22.5, -194, 0), Vector(0, 0, 1), 1.2), False)
sketch9.addGeometry(Part.Circle(Vector(22.5, -206, 0), Vector(0, 0, 1), 1.2), False)
sketch9.addGeometry(Part.Circle(Vector(17.5, -212, 0), Vector(0, 0, 1), 2), False)
sketch9.addGeometry(Part.Circle(Vector(12.5, -206, 0), Vector(0, 0, 1), 1.2), False)
sketch9.addGeometry(Part.Circle(Vector(8.5, -200, 0), Vector(0, 0, 1), 2), False)
sketch9.addGeometry(Part.Circle(Vector(12.5, -194, 0), Vector(0, 0, 1), 1.2), False)
sketch9.addGeometry(Part.Circle(Vector(17.5, -188, 0), Vector(0, 0, 1), 2), False)
sketch9.addConstraint(Sketcher.Constraint("Equal", 1, 2))
sketch9.addConstraint(Sketcher.Constraint("Equal", 0, 3))
sketch9.addConstraint(Sketcher.Constraint("Equal", 2, 4))
sketch9.addConstraint(Sketcher.Constraint("Equal", 3, 5))
sketch9.addConstraint(Sketcher.Constraint("Equal", 4, 6))
sketch9.addConstraint(Sketcher.Constraint("Equal", 5, 7))
sketch9.addConstraint(Sketcher.Constraint("Horizontal", 2, 3, 4, 3))
sketch9.addConstraint(Sketcher.Constraint("Horizontal", 0, 3, 5, 3))
sketch9.addConstraint(Sketcher.Constraint("Horizontal", 1, 3, 6, 3))
sketch9.addConstraint(Sketcher.Constraint("Vertical", 1, 3, 2, 3))
sketch9.addConstraint(Sketcher.Constraint("Vertical", 4, 3, 6, 3))
sketch9.addConstraint(Sketcher.Constraint("Vertical", 3, 3, 7, 3))
sketch9.addConstraint(Sketcher.Constraint("Diameter", 0, Q("4 mm")))
sketch9.addConstraint(Sketcher.Constraint("Diameter", 1, Q("2.5 mm")))
sketch9.addConstraint(Sketcher.Constraint("DistanceY", 0, 3, -1, 1, Q("200 mm")))
sketch9.addConstraint(Sketcher.Constraint("DistanceY", 1, 3, -1, 1, Q("194 mm")))
sketch9.addConstraint(Sketcher.Constraint("DistanceY", 2, 3, -1, 1, Q("206 mm")))
sketch9.addConstraint(Sketcher.Constraint("DistanceY", 3, 3, -1, 1, Q("212 mm")))
sketch9.addConstraint(Sketcher.Constraint("DistanceY", 7, 3, -1, 1, Q("188 mm")))
sketch9.addConstraint(Sketcher.Constraint("DistanceX", 1, 3, 0, 3, Q("4 mm")))
sketch9.addConstraint(Sketcher.Constraint("DistanceX", 3, 3, 2, 3, Q("5 mm")))
sketch9.addConstraint(Sketcher.Constraint("DistanceX", 4, 3, 3, 3, Q("5 mm")))
sketch9.addConstraint(Sketcher.Constraint("DistanceX", 5, 3, 4, 3, Q("4 mm")))
sketch9.addConstraint(Sketcher.Constraint("DistanceX", -1, 1, 0, 3, Q("26.5 mm")))
sketch9.setExpression("Constraints[12]", "Params.sketch9_diameter")
sketch9.setExpression("Constraints[13]", "Params.sketch9_diameter2")
pad3 = body.newObject("PartDesign::Pad", "Pad002")
pad3.Profile = sketch9
pad3.setExpression("Length", "Params.pad3_length")
pad3.Reversed = True

sketch10 = body.newObject("Sketcher::SketchObject", "Sketch009")
sketch10.AttachmentSupport = (doc.getObject("YZ_Plane"), [""])
sketch10.MapMode = "FlatFace"
sketch10.AttachmentOffset = App.Placement(Vector(0, 0, -4), App.Rotation())
sketch10.addGeometry(Part.Circle(Vector(29.5, -200, 0), Vector(0, 0, 1), 2), False)
sketch10.addGeometry(Part.Circle(Vector(17.5, -209, 0), Vector(0, 0, 1), 2), False)
sketch10.addGeometry(Part.Circle(Vector(17.5, -191, 0), Vector(0, 0, 1), 2), False)
sketch10.addGeometry(Part.Circle(Vector(5.5, -200, 0), Vector(0, 0, 1), 2), False)
sketch10.addGeometry(Part.Circle(Vector(23.5, -205, 0), Vector(0, 0, 1), 1.2), False)
sketch10.addGeometry(Part.Circle(Vector(23.5, -195, 0), Vector(0, 0, 1), 1.2), False)
sketch10.addGeometry(Part.Circle(Vector(11.5, -205, 0), Vector(0, 0, 1), 1.2), False)
sketch10.addGeometry(Part.Circle(Vector(11.5, -195, 0), Vector(0, 0, 1), 1.2), False)
sketch10.addConstraint(Sketcher.Constraint("Equal", 0, 1))
sketch10.addConstraint(Sketcher.Constraint("Equal", 1, 2))
sketch10.addConstraint(Sketcher.Constraint("Equal", 2, 3))
sketch10.addConstraint(Sketcher.Constraint("Equal", 4, 5))
sketch10.addConstraint(Sketcher.Constraint("Equal", 5, 6))
sketch10.addConstraint(Sketcher.Constraint("Equal", 6, 7))
sketch10.addConstraint(Sketcher.Constraint("Horizontal", 0, 3, 3, 3))
sketch10.addConstraint(Sketcher.Constraint("Horizontal", 4, 3, 6, 3))
sketch10.addConstraint(Sketcher.Constraint("Horizontal", 5, 3, 7, 3))
sketch10.addConstraint(Sketcher.Constraint("Vertical", 1, 3, 2, 3))
sketch10.addConstraint(Sketcher.Constraint("Vertical", 4, 3, 5, 3))
sketch10.addConstraint(Sketcher.Constraint("Vertical", 6, 3, 7, 3))
sketch10.addConstraint(Sketcher.Constraint("Diameter", 0, Q("4 mm")))
sketch10.addConstraint(Sketcher.Constraint("Diameter", 4, Q("2.5 mm")))
sketch10.addConstraint(Sketcher.Constraint("DistanceY", 0, 3, -1, 1, Q("200 mm")))
sketch10.addConstraint(Sketcher.Constraint("DistanceY", 1, 3, -1, 1, Q("209 mm")))
sketch10.addConstraint(Sketcher.Constraint("DistanceY", 2, 3, -1, 1, Q("191 mm")))
sketch10.addConstraint(Sketcher.Constraint("DistanceY", 4, 3, -1, 1, Q("205 mm")))
sketch10.addConstraint(Sketcher.Constraint("DistanceY", 5, 3, -1, 1, Q("195 mm")))
sketch10.addConstraint(Sketcher.Constraint("DistanceX", 1, 3, 0, 3, Q("12 mm")))
sketch10.addConstraint(Sketcher.Constraint("DistanceX", 3, 3, 1, 3, Q("12 mm")))
sketch10.addConstraint(Sketcher.Constraint("DistanceX", 1, 3, 4, 3, Q("6 mm")))
sketch10.addConstraint(Sketcher.Constraint("DistanceX", 6, 3, 1, 3, Q("6 mm")))
sketch10.addConstraint(Sketcher.Constraint("DistanceX", -1, 1, 0, 3, Q("29.5 mm")))
sketch10.setExpression("Constraints[12]", "Params.sketch10_diameter")
sketch10.setExpression("Constraints[13]", "Params.sketch10_diameter2")
pocket7 = body.newObject("PartDesign::Pocket", "Pocket006")
pocket7.Profile = sketch10
pocket7.setExpression("Length", "Params.pocket7_length")
pocket7.Reversed = True

doc.recompute()
